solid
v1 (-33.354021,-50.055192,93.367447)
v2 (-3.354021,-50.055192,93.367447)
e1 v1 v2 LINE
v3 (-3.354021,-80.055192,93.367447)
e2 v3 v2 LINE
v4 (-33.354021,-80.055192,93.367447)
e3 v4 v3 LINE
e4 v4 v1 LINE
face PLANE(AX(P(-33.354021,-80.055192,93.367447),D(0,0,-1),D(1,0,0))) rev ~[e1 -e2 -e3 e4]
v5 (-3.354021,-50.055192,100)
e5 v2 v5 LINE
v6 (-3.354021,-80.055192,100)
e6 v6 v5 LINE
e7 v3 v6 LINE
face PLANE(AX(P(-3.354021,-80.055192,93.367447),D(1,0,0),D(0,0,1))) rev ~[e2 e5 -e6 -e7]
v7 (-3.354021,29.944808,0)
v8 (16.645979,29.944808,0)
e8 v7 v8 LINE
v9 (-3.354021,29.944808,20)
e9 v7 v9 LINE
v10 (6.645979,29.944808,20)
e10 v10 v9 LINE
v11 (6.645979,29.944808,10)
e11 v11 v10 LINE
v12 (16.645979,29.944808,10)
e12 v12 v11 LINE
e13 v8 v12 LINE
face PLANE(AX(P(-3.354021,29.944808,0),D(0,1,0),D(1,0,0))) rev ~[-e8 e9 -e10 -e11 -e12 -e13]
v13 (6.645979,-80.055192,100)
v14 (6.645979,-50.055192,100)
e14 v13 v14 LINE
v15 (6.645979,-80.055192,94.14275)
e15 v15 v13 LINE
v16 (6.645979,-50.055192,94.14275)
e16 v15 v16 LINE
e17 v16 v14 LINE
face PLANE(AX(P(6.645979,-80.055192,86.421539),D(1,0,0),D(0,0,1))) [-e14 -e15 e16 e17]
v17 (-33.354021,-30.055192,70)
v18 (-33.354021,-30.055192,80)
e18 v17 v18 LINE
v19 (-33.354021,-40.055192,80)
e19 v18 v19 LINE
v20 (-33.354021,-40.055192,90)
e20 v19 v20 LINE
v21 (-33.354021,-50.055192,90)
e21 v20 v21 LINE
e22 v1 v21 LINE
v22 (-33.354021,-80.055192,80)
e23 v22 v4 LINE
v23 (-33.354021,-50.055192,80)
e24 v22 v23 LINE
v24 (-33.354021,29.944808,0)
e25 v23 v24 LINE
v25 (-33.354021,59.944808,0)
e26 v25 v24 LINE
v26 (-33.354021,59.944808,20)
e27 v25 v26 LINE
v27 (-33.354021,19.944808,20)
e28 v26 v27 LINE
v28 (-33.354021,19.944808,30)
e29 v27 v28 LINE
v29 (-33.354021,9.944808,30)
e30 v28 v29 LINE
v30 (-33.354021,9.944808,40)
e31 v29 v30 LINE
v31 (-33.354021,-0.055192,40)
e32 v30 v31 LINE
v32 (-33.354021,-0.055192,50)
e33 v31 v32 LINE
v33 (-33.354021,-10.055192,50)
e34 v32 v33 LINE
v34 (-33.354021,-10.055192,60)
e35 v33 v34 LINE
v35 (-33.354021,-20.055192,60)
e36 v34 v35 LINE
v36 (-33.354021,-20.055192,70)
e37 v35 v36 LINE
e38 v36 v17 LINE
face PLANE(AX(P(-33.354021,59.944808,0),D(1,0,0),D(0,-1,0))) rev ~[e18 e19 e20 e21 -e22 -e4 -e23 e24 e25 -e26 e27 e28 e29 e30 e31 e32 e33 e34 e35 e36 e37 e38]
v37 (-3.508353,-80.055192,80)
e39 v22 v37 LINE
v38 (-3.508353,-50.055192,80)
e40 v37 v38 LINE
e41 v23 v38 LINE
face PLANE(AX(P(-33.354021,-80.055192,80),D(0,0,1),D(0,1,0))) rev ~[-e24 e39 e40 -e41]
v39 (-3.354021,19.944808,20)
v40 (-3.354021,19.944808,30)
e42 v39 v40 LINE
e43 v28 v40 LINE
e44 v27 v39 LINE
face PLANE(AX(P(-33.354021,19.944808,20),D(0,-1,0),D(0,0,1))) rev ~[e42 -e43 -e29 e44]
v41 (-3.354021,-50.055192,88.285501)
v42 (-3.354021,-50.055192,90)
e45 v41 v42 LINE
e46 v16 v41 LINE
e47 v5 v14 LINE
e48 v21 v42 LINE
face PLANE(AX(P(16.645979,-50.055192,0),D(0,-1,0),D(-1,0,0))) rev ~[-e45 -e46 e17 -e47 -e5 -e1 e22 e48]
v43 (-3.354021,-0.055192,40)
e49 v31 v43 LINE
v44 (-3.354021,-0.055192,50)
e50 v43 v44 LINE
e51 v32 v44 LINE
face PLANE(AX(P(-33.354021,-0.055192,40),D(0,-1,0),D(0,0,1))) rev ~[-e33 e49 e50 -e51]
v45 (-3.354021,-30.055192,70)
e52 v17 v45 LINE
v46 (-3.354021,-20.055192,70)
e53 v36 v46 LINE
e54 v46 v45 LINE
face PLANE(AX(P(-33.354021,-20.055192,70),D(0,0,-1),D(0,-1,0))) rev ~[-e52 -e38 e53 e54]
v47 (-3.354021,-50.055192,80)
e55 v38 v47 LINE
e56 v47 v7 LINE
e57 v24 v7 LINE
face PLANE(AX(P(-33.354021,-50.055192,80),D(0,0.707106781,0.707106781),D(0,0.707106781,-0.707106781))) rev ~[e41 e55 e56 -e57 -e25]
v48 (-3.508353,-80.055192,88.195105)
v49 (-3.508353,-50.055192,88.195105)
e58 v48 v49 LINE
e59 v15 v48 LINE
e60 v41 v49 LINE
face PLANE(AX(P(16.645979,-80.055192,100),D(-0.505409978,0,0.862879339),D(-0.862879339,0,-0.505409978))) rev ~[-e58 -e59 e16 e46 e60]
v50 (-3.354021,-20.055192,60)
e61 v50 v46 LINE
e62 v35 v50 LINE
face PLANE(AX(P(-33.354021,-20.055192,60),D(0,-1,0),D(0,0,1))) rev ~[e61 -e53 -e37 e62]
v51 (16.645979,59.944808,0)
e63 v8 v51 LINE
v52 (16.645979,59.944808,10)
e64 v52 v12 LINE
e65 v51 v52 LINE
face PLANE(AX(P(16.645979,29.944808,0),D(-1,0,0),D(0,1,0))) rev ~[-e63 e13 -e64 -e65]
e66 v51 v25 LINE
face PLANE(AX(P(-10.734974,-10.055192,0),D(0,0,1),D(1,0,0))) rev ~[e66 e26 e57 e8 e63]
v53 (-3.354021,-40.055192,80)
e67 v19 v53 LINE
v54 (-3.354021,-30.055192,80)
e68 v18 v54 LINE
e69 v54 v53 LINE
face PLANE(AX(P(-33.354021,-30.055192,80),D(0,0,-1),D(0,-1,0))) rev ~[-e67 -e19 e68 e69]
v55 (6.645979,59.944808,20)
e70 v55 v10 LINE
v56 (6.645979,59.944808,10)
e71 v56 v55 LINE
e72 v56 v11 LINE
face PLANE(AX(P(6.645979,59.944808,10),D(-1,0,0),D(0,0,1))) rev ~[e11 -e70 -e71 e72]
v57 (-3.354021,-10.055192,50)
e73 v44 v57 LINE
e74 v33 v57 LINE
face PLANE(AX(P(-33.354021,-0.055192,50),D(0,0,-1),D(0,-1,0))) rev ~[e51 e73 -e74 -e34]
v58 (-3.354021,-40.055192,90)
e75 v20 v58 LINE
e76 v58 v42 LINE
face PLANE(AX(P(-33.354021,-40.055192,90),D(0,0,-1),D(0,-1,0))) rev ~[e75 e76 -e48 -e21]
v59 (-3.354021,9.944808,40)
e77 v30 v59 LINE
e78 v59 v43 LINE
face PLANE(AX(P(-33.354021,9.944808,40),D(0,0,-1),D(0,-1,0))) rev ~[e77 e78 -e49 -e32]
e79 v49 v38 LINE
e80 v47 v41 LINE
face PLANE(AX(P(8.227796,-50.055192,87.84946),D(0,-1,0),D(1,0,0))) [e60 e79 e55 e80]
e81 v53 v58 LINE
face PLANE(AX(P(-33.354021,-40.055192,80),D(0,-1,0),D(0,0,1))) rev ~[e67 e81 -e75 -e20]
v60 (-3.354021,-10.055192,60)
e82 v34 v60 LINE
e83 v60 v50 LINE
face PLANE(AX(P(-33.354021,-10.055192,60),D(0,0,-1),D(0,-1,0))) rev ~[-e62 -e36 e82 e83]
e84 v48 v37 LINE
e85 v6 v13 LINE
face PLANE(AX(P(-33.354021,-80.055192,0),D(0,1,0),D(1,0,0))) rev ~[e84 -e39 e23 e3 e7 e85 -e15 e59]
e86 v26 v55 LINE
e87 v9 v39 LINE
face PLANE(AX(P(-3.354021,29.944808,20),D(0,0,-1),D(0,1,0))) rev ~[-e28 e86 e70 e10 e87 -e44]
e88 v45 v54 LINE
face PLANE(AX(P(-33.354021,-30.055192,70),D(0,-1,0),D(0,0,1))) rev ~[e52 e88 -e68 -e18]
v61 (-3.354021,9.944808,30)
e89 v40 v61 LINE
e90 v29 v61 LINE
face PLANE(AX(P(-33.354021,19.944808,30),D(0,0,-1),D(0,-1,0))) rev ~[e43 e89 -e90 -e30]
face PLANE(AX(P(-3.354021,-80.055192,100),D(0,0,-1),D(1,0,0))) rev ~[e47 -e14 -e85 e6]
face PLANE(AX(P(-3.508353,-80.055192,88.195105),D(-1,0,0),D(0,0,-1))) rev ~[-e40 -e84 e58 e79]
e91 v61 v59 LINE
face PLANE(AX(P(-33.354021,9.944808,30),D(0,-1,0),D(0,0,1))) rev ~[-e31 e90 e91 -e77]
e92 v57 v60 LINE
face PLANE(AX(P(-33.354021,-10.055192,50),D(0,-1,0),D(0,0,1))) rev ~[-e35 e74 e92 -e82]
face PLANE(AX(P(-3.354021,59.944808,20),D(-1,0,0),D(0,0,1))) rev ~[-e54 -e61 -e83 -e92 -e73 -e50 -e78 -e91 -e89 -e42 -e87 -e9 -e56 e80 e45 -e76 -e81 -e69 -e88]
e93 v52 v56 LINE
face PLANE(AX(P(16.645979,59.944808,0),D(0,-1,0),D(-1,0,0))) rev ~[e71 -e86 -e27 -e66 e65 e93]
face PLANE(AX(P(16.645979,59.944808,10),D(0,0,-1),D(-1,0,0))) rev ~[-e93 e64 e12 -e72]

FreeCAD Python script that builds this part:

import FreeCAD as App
import Part
import Sketcher
from FreeCAD import Vector
Q = App.Units.Quantity

doc = App.newDocument("Part")
params = doc.addObject("Spreadsheet::Sheet", "Params")
for row, (alias, value) in enumerate([
    ("sketch1_width", "50 mm"),
    ("sketch1_width2", "20 mm"),
    ("sketch1_height", "140 mm"),
    ("sketch1_height2", "30 mm"),
    ("pad1_length", "120 mm"),
    ("sketch2_width", "10 mm"),
    ("sketch2_height", "100 mm"),
    ("pocket1_length", "30 mm"),
    ("sketch3_width", "80 mm"),
    ("sketch3_height", "100 mm"),
    ("sketch3_height2", "20 mm"),
    ("pocket2_length", "30 mm"),
    ("sketch4_width", "30 mm"),
    ("sketch4_height", "100 mm"),
    ("pocket3_length", "30 mm"),
    ("sketch5_width", "110 mm"),
    ("sketch5_width2", "30 mm"),
    ("sketch5_height", "80 mm"),
    ("pocket4_length", "60 mm"),
    ("sketch6_width", "10 mm"),
    ("pocket5_length", "30 mm"),
    ("sketch7_width", "10 mm"),
    ("pocket6_length", "30 mm"),
    ("sketch8_width", "30 mm"),
    ("pocket7_length", "30 mm"),
    ("sketch9_width", "10 mm"),
    ("pocket8_length", "30 mm"),
], start=1):
    params.set(f"A{row}", alias)
    params.set(f"B{row}", "=" + value)
    params.setAlias(f"B{row}", alias)

body = doc.addObject("PartDesign::Body", "Body")

# Sketch on XY plane
sketch1 = body.newObject("Sketcher::SketchObject", "Sketch")
sketch1.AttachmentSupport = (doc.getObject("XY_Plane"), [""])
sketch1.MapMode = "FlatFace"
sketch1.addGeometry([
    Part.LineSegment(Vector(16.645979, 59.944808, 0), Vector(-33.354021, 59.944808, 0)),  # 0
    Part.LineSegment(Vector(-33.354021, 59.944808, 0), Vector(-33.354021, -80.055192, 0)),  # 1
    Part.LineSegment(Vector(-33.354021, -80.055192, 0), Vector(16.645979, -80.055192, 0)),  # 2
    Part.LineSegment(Vector(16.645979, -80.055192, 0), Vector(16.645979, -50.055192, 0)),  # 3
    Part.LineSegment(Vector(16.645979, -50.055192, 0), Vector(-3.354021, -50.055192, 0)),  # 4
    Part.LineSegment(Vector(-3.354021, -50.055192, 0), Vector(-3.354021, 29.944808, 0)),  # 5
    Part.LineSegment(Vector(-3.354021, 29.944808, 0), Vector(16.645979, 29.944808, 0)),  # 6
    Part.LineSegment(Vector(16.645979, 29.944808, 0), Vector(16.645979, 59.944808, 0)),  # 7
], False)
sketch1.addConstraint([
    Sketcher.Constraint("Coincident", 0, 2, 1, 1),
    Sketcher.Constraint("Coincident", 1, 2, 2, 1),
    Sketcher.Constraint("Coincident", 2, 2, 3, 1),
    Sketcher.Constraint("Coincident", 3, 2, 4, 1),
    Sketcher.Constraint("Coincident", 4, 2, 5, 1),
    Sketcher.Constraint("Coincident", 5, 2, 6, 1),
    Sketcher.Constraint("Coincident", 6, 2, 7, 1),
    Sketcher.Constraint("Coincident", 7, 2, 0, 1),
    Sketcher.Constraint("Horizontal", 0),
    Sketcher.Constraint("Vertical", 1),
    Sketcher.Constraint("Horizontal", 2),
    Sketcher.Constraint("Vertical", 3),
    Sketcher.Constraint("Horizontal", 4),
    Sketcher.Constraint("Vertical", 5),
    Sketcher.Constraint("Horizontal", 6),
    Sketcher.Constraint("Vertical", 7),
    Sketcher.Constraint("Vertical", 3, 2, 6, 2),
    Sketcher.Constraint("Equal", 3, 7),
    Sketcher.Constraint("DistanceX", 0, 2, 0, 1, Q("50 mm")),
    Sketcher.Constraint("DistanceX", 4, 2, 4, 1, Q("20 mm")),
    Sketcher.Constraint("DistanceY", 1, 2, 1, 1, Q("140 mm")),
    Sketcher.Constraint("DistanceY", 3, 1, 3, 2, Q("30 mm")),
    Sketcher.Constraint("DistanceX", 0, 2, -1, 1, Q("33.354021 mm")),
    Sketcher.Constraint("DistanceY", -1, 1, 0, 2, Q("59.944808 mm")),
])
sketch1.setExpression("Constraints[18]", "Params.sketch1_width")
sketch1.setExpression("Constraints[19]", "Params.sketch1_width2")
sketch1.setExpression("Constraints[20]", "Params.sketch1_height")
sketch1.setExpression("Constraints[21]", "Params.sketch1_height2")
pad1 = body.newObject("PartDesign::Pad", "Pad")
pad1.Profile = sketch1
pad1.setExpression("Length", "Params.pad1_length")

# Sketch on XZ plane
sketch2 = body.newObject("Sketcher::SketchObject", "Sketch001")
sketch2.AttachmentSupport = (doc.getObject("XZ_Plane"), [""])
sketch2.MapMode = "FlatFace"
sketch2.AttachmentOffset = App.Placement(Vector(0, 0, -59.944808), App.Rotation())
sketch2.addGeometry([
    Part.LineSegment(Vector(16.645979, 10, 0), Vector(6.645979, 10, 0)),  # 0
    Part.LineSegment(Vector(6.645979, 10, 0), Vector(6.645979, 20, 0)),  # 1
    Part.LineSegment(Vector(6.645979, 20, 0), Vector(-3.354021, 20, 0)),  # 2
    Part.LineSegment(Vector(-3.354021, 20, 0), Vector(-3.354021, 120, 0)),  # 3
    Part.LineSegment(Vector(-3.354021, 120, 0), Vector(16.645979, 120, 0)),  # 4
    Part.LineSegment(Vector(16.645979, 120, 0), Vector(16.645979, 10, 0)),  # 5
], False)
sketch2.addConstraint([
    Sketcher.Constraint("Coincident", 0, 2, 1, 1),
    Sketcher.Constraint("Coincident", 1, 2, 2, 1),
    Sketcher.Constraint("Coincident", 2, 2, 3, 1),
    Sketcher.Constraint("Coincident", 3, 2, 4, 1),
    Sketcher.Constraint("Coincident", 4, 2, 5, 1),
    Sketcher.Constraint("Coincident", 5, 2, 0, 1),
    Sketcher.Constraint("Horizontal", 0),
    Sketcher.Constraint("Vertical", 1),
    Sketcher.Constraint("Horizontal", 2),
    Sketcher.Constraint("Vertical", 3),
    Sketcher.Constraint("Horizontal", 4),
    Sketcher.Constraint("Vertical", 5),
    Sketcher.Constraint("Equal", 0, 2),
    Sketcher.Constraint("Equal", 2, 1),
    Sketcher.Constraint("DistanceX", 0, 2, 0, 1, Q("10 mm")),
    Sketcher.Constraint("DistanceY", 3, 1, 3, 2, Q("100 mm")),
    Sketcher.Constraint("DistanceY", -1, 1, 0, 2, Q("10 mm")),
    Sketcher.Constraint("DistanceX", -1, 1, 0, 2, Q("6.645979 mm")),
])
sketch2.setExpression("Constraints[14]", "Params.sketch2_width")
sketch2.setExpression("Constraints[15]", "Params.sketch2_height")
pocket1 = body.newObject("PartDesign::Pocket", "Pocket")
pocket1.Profile = sketch2
pocket1.setExpression("Length", "Params.pocket1_length")
pocket1.Reversed = True

# Sketch on YZ plane
sketch3 = body.newObject("Sketcher::SketchObject", "Sketch002")
sketch3.AttachmentSupport = (doc.getObject("YZ_Plane"), [""])
sketch3.MapMode = "FlatFace"
sketch3.AttachmentOffset = App.Placement(Vector(0, 0, -3.354021), App.Rotation())
sketch3.addGeometry([
    Part.LineSegment(Vector(-50.055192, 100, 0), Vector(29.944808, 20, 0)),
    Part.LineSegment(Vector(29.944808, 20, 0), Vector(29.944808, 120, 0)),
    Part.LineSegment(Vector(29.944808, 120, 0), Vector(-50.055192, 120, 0)),
    Part.LineSegment(Vector(-50.055192, 120, 0), Vector(-50.055192, 100, 0)),
], False)
sketch3.addConstraint([
    Sketcher.Constraint("Coincident", 0, 2, 1, 1),
    Sketcher.Constraint("Coincident", 1, 2, 2, 1),
    Sketcher.Constraint("Coincident", 2, 2, 3, 1),
    Sketcher.Constraint("Coincident", 3, 2, 0, 1),
    Sketcher.Constraint("Vertical", 1),
    Sketcher.Constraint("Horizontal", 2),
    Sketcher.Constraint("Vertical", 3),
    Sketcher.Constraint("DistanceX", 2, 2, 2, 1, Q("80 mm")),
    Sketcher.Constraint("DistanceY", 1, 1, 1, 2, Q("100 mm")),
    Sketcher.Constraint("DistanceY", 3, 2, 3, 1, Q("20 mm")),
    Sketcher.Constraint("DistanceY", -1, 1, 0, 2, Q("20 mm")),
    Sketcher.Constraint("DistanceX", -1, 1, 0, 2, Q("29.944808 mm")),
])
sketch3.setExpression("Constraints[7]", "Params.sketch3_width")
sketch3.setExpression("Constraints[8]", "Params.sketch3_height")
sketch3.setExpression("Constraints[9]", "Params.sketch3_height2")
pocket2 = body.newObject("PartDesign::Pocket", "Pocket001")
pocket2.Profile = sketch3
pocket2.setExpression("Length", "Params.pocket2_length")

# Sketch on YZ plane
sketch4 = body.newObject("Sketcher::SketchObject", "Sketch003")
sketch4.AttachmentSupport = (doc.getObject("YZ_Plane"), [""])
sketch4.MapMode = "FlatFace"
sketch4.AttachmentOffset = App.Placement(Vector(0, 0, -3.354021), App.Rotation())
sketch4.addGeometry([
    Part.LineSegment(Vector(29.944808, 120, 0), Vector(29.944808, 20, 0)),
    Part.LineSegment(Vector(29.944808, 20, 0), Vector(59.944808, 20, 0)),
    Part.LineSegment(Vector(59.944808, 20, 0), Vector(59.944808, 120, 0)),
    Part.LineSegment(Vector(59.944808, 120, 0), Vector(29.944808, 120, 0)),
], False)
sketch4.addConstraint([
    Sketcher.Constraint("Coincident", 0, 2, 1, 1),
    Sketcher.Constraint("Coincident", 1, 2, 2, 1),
    Sketcher.Constraint("Coincident", 2, 2, 3, 1),
    Sketcher.Constraint("Coincident", 3, 2, 0, 1),
    Sketcher.Constraint("Vertical", 0),
    Sketcher.Constraint("Horizontal", 1),
    Sketcher.Constraint("Vertical", 2),
    Sketcher.Constraint("Horizontal", 3),
    Sketcher.Constraint("DistanceX", 1, 1, 1, 2, Q("30 mm")),
    Sketcher.Constraint("DistanceY", 0, 2, 0, 1, Q("100 mm")),
    Sketcher.Constraint("DistanceY", -1, 1, 0, 2, Q("20 mm")),
    Sketcher.Constraint("DistanceX", -1, 1, 0, 2, Q("29.944808 mm")),
])
sketch4.setExpression("Constraints[8]", "Params.sketch4_width")
sketch4.setExpression("Constraints[9]", "Params.sketch4_height")
pocket3 = body.newObject("PartDesign::Pocket", "Pocket002")
pocket3.Profile = sketch4
pocket3.setExpression("Length", "Params.pocket3_length")

# Sketch on YZ plane
sketch5 = body.newObject("Sketcher::SketchObject", "Sketch004")
sketch5.AttachmentSupport = (doc.getObject("YZ_Plane"), [""])
sketch5.MapMode = "FlatFace"
sketch5.AttachmentOffset = App.Placement(Vector(0, 0, -33.354021), App.Rotation())
sketch5.addGeometry([
    Part.LineSegment(Vector(-50.055192, 80, 0), Vector(29.944808, 0, 0)),
    Part.LineSegment(Vector(29.944808, 0, 0), Vector(-80.055192, 0, 0)),
    Part.LineSegment(Vector(-80.055192, 0, 0), Vector(-80.055192, 80, 0)),
    Part.LineSegment(Vector(-80.055192, 80, 0), Vector(-50.055192, 80, 0)),
], False)
sketch5.addConstraint([
    Sketcher.Constraint("Coincident", 0, 2, 1, 1),
    Sketcher.Constraint("Coincident", 1, 2, 2, 1),
    Sketcher.Constraint("Coincident", 2, 2, 3, 1),
    Sketcher.Constraint("Coincident", 3, 2, 0, 1),
    Sketcher.Constraint("Horizontal", 1),
    Sketcher.Constraint("Vertical", 2),
    Sketcher.Constraint("Horizontal", 3),
    Sketcher.Constraint("PointOnObject", 0, 2, -1),
    Sketcher.Constraint("DistanceX", 1, 2, 1, 1, Q("110 mm")),
    Sketcher.Constraint("DistanceX", 3, 1, 3, 2, Q("30 mm")),
    Sketcher.Constraint("DistanceY", 2, 1, 2, 2, Q("80 mm")),
    Sketcher.Constraint("DistanceX", -1, 1, 0, 2, Q("29.944808 mm")),
])
sketch5.setExpression("Constraints[8]", "Params.sketch5_width")
sketch5.setExpression("Constraints[9]", "Params.sketch5_width2")
sketch5.setExpression("Constraints[10]", "Params.sketch5_height")
pocket4 = body.newObject("PartDesign::Pocket", "Pocket003")
pocket4.Profile = sketch5
pocket4.setExpression("Length", "Params.pocket4_length")
pocket4.Reversed = True

# Sketch on YZ plane
sketch6 = body.newObject("Sketcher::SketchObject", "Sketch005")
sketch6.AttachmentSupport = (doc.getObject("YZ_Plane"), [""])
sketch6.MapMode = "FlatFace"
sketch6.AttachmentOffset = App.Placement(Vector(0, 0, -33.354021), App.Rotation())
sketch6.addGeometry([
    Part.LineSegment(Vector(29.944808, 30, 0), Vector(29.944808, 20, 0)),  # 0
    Part.LineSegment(Vector(29.944808, 20, 0), Vector(19.944808, 20, 0)),  # 1
    Part.LineSegment(Vector(19.944808, 20, 0), Vector(19.944808, 30, 0)),  # 2
    Part.LineSegment(Vector(19.944808, 30, 0), Vector(29.944808, 30, 0)),  # 3
    Part.LineSegment(Vector(-40.055192, 100, 0), Vector(-40.055192, 90, 0)),  # 4
    Part.LineSegment(Vector(-40.055192, 90, 0), Vector(-50.055192, 90, 0)),  # 5
    Part.LineSegment(Vector(-50.055192, 90, 0), Vector(-50.055192, 100, 0)),  # 6
    Part.LineSegment(Vector(-50.055192, 100, 0), Vector(-40.055192, 100, 0)),  # 7
    Part.LineSegment(Vector(-30.055192, 90, 0), Vector(-30.055192, 80, 0)),  # 8
    Part.LineSegment(Vector(-30.055192, 80, 0), Vector(-40.055192, 80, 0)),  # 9
    Part.LineSegment(Vector(-40.055192, 80, 0), Vector(-40.055192, 90, 0)),  # 10
    Part.LineSegment(Vector(-40.055192, 90, 0), Vector(-30.055192, 90, 0)),  # 11
    Part.LineSegment(Vector(-20.055192, 80, 0), Vector(-20.055192, 70, 0)),  # 12
    Part.LineSegment(Vector(-20.055192, 70, 0), Vector(-30.055192, 70, 0)),  # 13
    Part.LineSegment(Vector(-30.055192, 70, 0), Vector(-30.055192, 80, 0)),  # 14
    Part.LineSegment(Vector(-30.055192, 80, 0), Vector(-20.055192, 80, 0)),  # 15
    Part.LineSegment(Vector(-10.055192, 70, 0), Vector(-10.055192, 60, 0)),  # 16
    Part.LineSegment(Vector(-10.055192, 60, 0), Vector(-20.055192, 60, 0)),  # 17
    Part.LineSegment(Vector(-20.055192, 60, 0), Vector(-20.055192, 70, 0)),  # 18
    Part.LineSegment(Vector(-20.055192, 70, 0), Vector(-10.055192, 70, 0)),  # 19
    Part.LineSegment(Vector(-0.055192, 60, 0), Vector(-0.055192, 50, 0)),  # 20
    Part.LineSegment(Vector(-0.055192, 50, 0), Vector(-10.055192, 50, 0)),  # 21
    Part.LineSegment(Vector(-10.055192, 50, 0), Vector(-10.055192, 60, 0)),  # 22
    Part.LineSegment(Vector(-10.055192, 60, 0), Vector(-0.055192, 60, 0)),  # 23
    Part.LineSegment(Vector(9.944808, 50, 0), Vector(9.944808, 40, 0)),  # 24
    Part.LineSegment(Vector(9.944808, 40, 0), Vector(-0.055192, 40, 0)),  # 25
    Part.LineSegment(Vector(-0.055192, 40, 0), Vector(-0.055192, 50, 0)),  # 26
    Part.LineSegment(Vector(-0.055192, 50, 0), Vector(9.944808, 50, 0)),  # 27
    Part.LineSegment(Vector(19.944808, 40, 0), Vector(19.944808, 30, 0)),  # 28
    Part.LineSegment(Vector(19.944808, 30, 0), Vector(9.944808, 30, 0)),  # 29
    Part.LineSegment(Vector(9.944808, 30, 0), Vector(9.944808, 40, 0)),  # 30
    Part.LineSegment(Vector(9.944808, 40, 0), Vector(19.944808, 40, 0)),  # 31
], False)
sketch6.addConstraint([
    Sketcher.Constraint("Coincident", 0, 2, 1, 1),
    Sketcher.Constraint("Coincident", 1, 2, 2, 1),
    Sketcher.Constraint("Coincident", 2, 2, 3, 1),
    Sketcher.Constraint("Coincident", 3, 2, 0, 1),
    Sketcher.Constraint("Coincident", 4, 2, 5, 1),
    Sketcher.Constraint("Coincident", 5, 2, 6, 1),
    Sketcher.Constraint("Coincident", 6, 2, 7, 1),
    Sketcher.Constraint("Coincident", 7, 2, 4, 1),
    Sketcher.Constraint("Coincident", 8, 2, 9, 1),
    Sketcher.Constraint("Coincident", 9, 2, 10, 1),
    Sketcher.Constraint("Coincident", 10, 2, 11, 1),
    Sketcher.Constraint("Coincident", 11, 2, 8, 1),
    Sketcher.Constraint("Coincident", 12, 2, 13, 1),
    Sketcher.Constraint("Coincident", 13, 2, 14, 1),
    Sketcher.Constraint("Coincident", 14, 2, 15, 1),
    Sketcher.Constraint("Coincident", 15, 2, 12, 1),
    Sketcher.Constraint("Coincident", 16, 2, 17, 1),
    Sketcher.Constraint("Coincident", 17, 2, 18, 1),
    Sketcher.Constraint("Coincident", 18, 2, 19, 1),
    Sketcher.Constraint("Coincident", 19, 2, 16, 1),
    Sketcher.Constraint("Coincident", 20, 2, 21, 1),
    Sketcher.Constraint("Coincident", 21, 2, 22, 1),
    Sketcher.Constraint("Coincident", 22, 2, 23, 1),
    Sketcher.Constraint("Coincident", 23, 2, 20, 1),
    Sketcher.Constraint("Coincident", 24, 2, 25, 1),
    Sketcher.Constraint("Coincident", 25, 2, 26, 1),
    Sketcher.Constraint("Coincident", 26, 2, 27, 1),
    Sketcher.Constraint("Coincident", 27, 2, 24, 1),
    Sketcher.Constraint("Coincident", 28, 2, 29, 1),
    Sketcher.Constraint("Coincident", 29, 2, 30, 1),
    Sketcher.Constraint("Coincident", 30, 2, 31, 1),
    Sketcher.Constraint("Coincident", 31, 2, 28, 1),
    Sketcher.Constraint("Vertical", 0),
    Sketcher.Constraint("Horizontal", 1),
    Sketcher.Constraint("Vertical", 2),
    Sketcher.Constraint("Horizontal", 3),
    Sketcher.Constraint("Vertical", 4),
    Sketcher.Constraint("Horizontal", 5),
    Sketcher.Constraint("Vertical", 6),
    Sketcher.Constraint("Horizontal", 7),
    Sketcher.Constraint("Vertical", 8),
    Sketcher.Constraint("Horizontal", 9),
    Sketcher.Constraint("Vertical", 10),
    Sketcher.Constraint("Horizontal", 11),
    Sketcher.Constraint("Vertical", 12),
    Sketcher.Constraint("Horizontal", 13),
    Sketcher.Constraint("Vertical", 14),
    Sketcher.Constraint("Horizontal", 15),
    Sketcher.Constraint("Vertical", 16),
    Sketcher.Constraint("Horizontal", 17),
    Sketcher.Constraint("Vertical", 18),
    Sketcher.Constraint("Horizontal", 19),
    Sketcher.Constraint("Vertical", 20),
    Sketcher.Constraint("Horizontal", 21),
    Sketcher.Constraint("Vertical", 22),
    Sketcher.Constraint("Horizontal", 23),
    Sketcher.Constraint("Vertical", 24),
    Sketcher.Constraint("Horizontal", 25),
    Sketcher.Constraint("Vertical", 26),
    Sketcher.Constraint("Horizontal", 27),
    Sketcher.Constraint("Vertical", 28),
    Sketcher.Constraint("Horizontal", 29),
    Sketcher.Constraint("Vertical", 30),
    Sketcher.Constraint("Horizontal", 31),
    Sketcher.Constraint("Coincident", 10, 2, 4, 2),
    Sketcher.Constraint("Coincident", 14, 2, 8, 2),
    Sketcher.Constraint("Coincident", 18, 2, 12, 2),
    Sketcher.Constraint("Coincident", 22, 2, 16, 2),
    Sketcher.Constraint("Coincident", 26, 2, 20, 2),
    Sketcher.Constraint("Coincident", 28, 2, 2, 2),
    Sketcher.Constraint("Coincident", 30, 2, 24, 2),
    Sketcher.Constraint("Equal", 3, 5),
    Sketcher.Constraint("Equal", 7, 9),
    Sketcher.Constraint("Equal", 11, 13),
    Sketcher.Constraint("Equal", 15, 17),
    Sketcher.Constraint("Equal", 19, 21),
    Sketcher.Constraint("Equal", 23, 25),
    Sketcher.Constraint("Equal", 27, 29),
    Sketcher.Constraint("Equal", 31, 0),
    Sketcher.Constraint("Equal", 2, 4),
    Sketcher.Constraint("Equal", 6, 8),
    Sketcher.Constraint("Equal", 10, 12),
    Sketcher.Constraint("Equal", 14, 16),
    Sketcher.Constraint("Equal", 18, 20),
    Sketcher.Constraint("Equal", 22, 24),
    Sketcher.Constraint("Equal", 26, 28),
    Sketcher.Constraint("DistanceX", 1, 2, 1, 1, Q("10 mm")),
    Sketcher.Constraint("DistanceY", -1, 1, 0, 2, Q("20 mm")),
    Sketcher.Constraint("DistanceX", -1, 1, 0, 2, Q("29.944808 mm")),
])
sketch6.setExpression("Constraints[86]", "Params.sketch6_width")
pocket5 = body.newObject("PartDesign::Pocket", "Pocket004")
pocket5.Profile = sketch6
pocket5.setExpression("Length", "Params.pocket5_length")
pocket5.Reversed = True

# Sketch on XZ plane
sketch7 = body.newObject("Sketcher::SketchObject", "Sketch006")
sketch7.AttachmentSupport = (doc.getObject("XZ_Plane"), [""])
sketch7.MapMode = "FlatFace"
sketch7.AttachmentOffset = App.Placement(Vector(0, 0, 80.055192), App.Rotation())
sketch7.addGeometry([
    Part.LineSegment(Vector(6.645979, 110, 0), Vector(16.645979, 110, 0)),  # 0
    Part.LineSegment(Vector(16.645979, 110, 0), Vector(16.645979, 120, 0)),  # 1
    Part.LineSegment(Vector(16.645979, 120, 0), Vector(-3.354021, 120, 0)),  # 2
    Part.LineSegment(Vector(-3.354021, 120, 0), Vector(-3.354021, 100, 0)),  # 3
    Part.LineSegment(Vector(-3.354021, 100, 0), Vector(6.645979, 100, 0)),  # 4
    Part.LineSegment(Vector(6.645979, 100, 0), Vector(6.645979, 110, 0)),  # 5
    Part.LineSegment(Vector(16.645979, 80, 0), Vector(16.645979, 100, 0)),  # 6
    Part.LineSegment(Vector(16.645979, 100, 0), Vector(-3.508353, 88.195105, 0)),  # 7
    Part.LineSegment(Vector(-3.508353, 88.195105, 0), Vector(-3.508353, 80, 0)),  # 8
    Part.LineSegment(Vector(-3.508353, 80, 0), Vector(16.645979, 80, 0)),  # 9
], False)
sketch7.addConstraint([
    Sketcher.Constraint("Coincident", 0, 2, 1, 1),
    Sketcher.Constraint("Coincident", 1, 2, 2, 1),
    Sketcher.Constraint("Coincident", 2, 2, 3, 1),
    Sketcher.Constraint("Coincident", 3, 2, 4, 1),
    Sketcher.Constraint("Coincident", 4, 2, 5, 1),
    Sketcher.Constraint("Coincident", 5, 2, 0, 1),
    Sketcher.Constraint("Coincident", 6, 2, 7, 1),
    Sketcher.Constraint("Coincident", 7, 2, 8, 1),
    Sketcher.Constraint("Coincident", 8, 2, 9, 1),
    Sketcher.Constraint("Coincident", 9, 2, 6, 1),
    Sketcher.Constraint("Horizontal", 0),
    Sketcher.Constraint("Vertical", 1),
    Sketcher.Constraint("Horizontal", 2),
    Sketcher.Constraint("Vertical", 3),
    Sketcher.Constraint("Horizontal", 4),
    Sketcher.Constraint("Vertical", 5),
    Sketcher.Constraint("Vertical", 6),
    Sketcher.Constraint("Vertical", 8),
    Sketcher.Constraint("Horizontal", 9),
    Sketcher.Constraint("Horizontal", 4, 2, 6, 2),
    Sketcher.Constraint("Vertical", 1, 2, 6, 2),
    Sketcher.Constraint("Equal", 0, 4),
    Sketcher.Constraint("Equal", 4, 1),
    Sketcher.Constraint("Equal", 2, 3),
    Sketcher.Constraint("Equal", 3, 6),
    Sketcher.Constraint("DistanceX", 0, 1, 0, 2, Q("10 mm")),
    Sketcher.Constraint("DistanceY", -1, 1, 0, 2, Q("110 mm")),
    Sketcher.Constraint("DistanceX", 9, 1, 9, 2, Q("20.154332 mm")),
    Sketcher.Constraint("Distance", 7, Q("23.357068 mm")),
    Sketcher.Constraint("DistanceX", -1, 1, 0, 2, Q("16.645979 mm")),
])
sketch7.setExpression("Constraints[25]", "Params.sketch7_width")
pocket6 = body.newObject("PartDesign::Pocket", "Pocket005")
pocket6.Profile = sketch7
pocket6.setExpression("Length", "Params.pocket6_length")

# Sketch on XZ plane
sketch8 = body.newObject("Sketcher::SketchObject", "Sketch007")
sketch8.AttachmentSupport = (doc.getObject("XZ_Plane"), [""])
sketch8.MapMode = "FlatFace"
sketch8.AttachmentOffset = App.Placement(Vector(0, 0, 80.055192), App.Rotation())
sketch8.addGeometry([
    Part.LineSegment(Vector(-3.354021, 120, 0), Vector(-33.354021, 120, 0)),
    Part.LineSegment(Vector(-33.354021, 120, 0), Vector(-33.354021, 93.367447, 0)),
    Part.LineSegment(Vector(-33.354021, 93.367447, 0), Vector(-3.354021, 93.367447, 0)),
    Part.LineSegment(Vector(-3.354021, 93.367447, 0), Vector(-3.354021, 120, 0)),
], False)
sketch8.addConstraint([
    Sketcher.Constraint("Coincident", 0, 2, 1, 1),
    Sketcher.Constraint("Coincident", 1, 2, 2, 1),
    Sketcher.Constraint("Coincident", 2, 2, 3, 1),
    Sketcher.Constraint("Coincident", 3, 2, 0, 1),
    Sketcher.Constraint("Horizontal", 0),
    Sketcher.Constraint("Vertical", 1),
    Sketcher.Constraint("Horizontal", 2),
    Sketcher.Constraint("Vertical", 3),
    Sketcher.Constraint("DistanceX", 0, 2, 0, 1, Q("30 mm")),
    Sketcher.Constraint("DistanceY", -1, 1, 0, 2, Q("120 mm")),
    Sketcher.Constraint("DistanceY", 1, 2, 1, 1, Q("26.632553 mm")),
    Sketcher.Constraint("DistanceX", 0, 2, -1, 1, Q("33.354021 mm")),
])
sketch8.setExpression("Constraints[8]", "Params.sketch8_width")
pocket7 = body.newObject("PartDesign::Pocket", "Pocket006")
pocket7.Profile = sketch8
pocket7.setExpression("Length", "Params.pocket7_length")

# Sketch on XZ plane
sketch9 = body.newObject("Sketcher::SketchObject", "Sketch008")
sketch9.AttachmentSupport = (doc.getObject("XZ_Plane"), [""])
sketch9.MapMode = "FlatFace"
sketch9.AttachmentOffset = App.Placement(Vector(0, 0, 80.055192), App.Rotation())
sketch9.addGeometry([
    Part.LineSegment(Vector(6.645979, 110, 0), Vector(6.645979, 86.421539, 0)),
    Part.LineSegment(Vector(6.645979, 86.421539, 0), Vector(16.645979, 86.421539, 0)),
    Part.LineSegment(Vector(16.645979, 86.421539, 0), Vector(16.645979, 110, 0)),
    Part.LineSegment(Vector(16.645979, 110, 0), Vector(6.645979, 110, 0)),
], False)
sketch9.addConstraint([
    Sketcher.Constraint("Coincident", 0, 2, 1, 1),
    Sketcher.Constraint("Coincident", 1, 2, 2, 1),
    Sketcher.Constraint("Coincident", 2, 2, 3, 1),
    Sketcher.Constraint("Coincident", 3, 2, 0, 1),
    Sketcher.Constraint("Vertical", 0),
    Sketcher.Constraint("Horizontal", 1),
    Sketcher.Constraint("Vertical", 2),
    Sketcher.Constraint("Horizontal", 3),
    Sketcher.Constraint("DistanceX", 1, 1, 1, 2, Q("10 mm")),
    Sketcher.Constraint("DistanceY", -1, 1, 2, 2, Q("110 mm")),
    Sketcher.Constraint("DistanceY", 0, 2, 0, 1, Q("23.578461 mm")),
    Sketcher.Constraint("DistanceX", -1, 1, 0, 2, Q("6.645979 mm")),
])
sketch9.setExpression("Constraints[8]", "Params.sketch9_width")
pocket8 = body.newObject("PartDesign::Pocket", "Pocket007")
pocket8.Profile = sketch9
pocket8.setExpression("Length", "Params.pocket8_length")

doc.recompute()
